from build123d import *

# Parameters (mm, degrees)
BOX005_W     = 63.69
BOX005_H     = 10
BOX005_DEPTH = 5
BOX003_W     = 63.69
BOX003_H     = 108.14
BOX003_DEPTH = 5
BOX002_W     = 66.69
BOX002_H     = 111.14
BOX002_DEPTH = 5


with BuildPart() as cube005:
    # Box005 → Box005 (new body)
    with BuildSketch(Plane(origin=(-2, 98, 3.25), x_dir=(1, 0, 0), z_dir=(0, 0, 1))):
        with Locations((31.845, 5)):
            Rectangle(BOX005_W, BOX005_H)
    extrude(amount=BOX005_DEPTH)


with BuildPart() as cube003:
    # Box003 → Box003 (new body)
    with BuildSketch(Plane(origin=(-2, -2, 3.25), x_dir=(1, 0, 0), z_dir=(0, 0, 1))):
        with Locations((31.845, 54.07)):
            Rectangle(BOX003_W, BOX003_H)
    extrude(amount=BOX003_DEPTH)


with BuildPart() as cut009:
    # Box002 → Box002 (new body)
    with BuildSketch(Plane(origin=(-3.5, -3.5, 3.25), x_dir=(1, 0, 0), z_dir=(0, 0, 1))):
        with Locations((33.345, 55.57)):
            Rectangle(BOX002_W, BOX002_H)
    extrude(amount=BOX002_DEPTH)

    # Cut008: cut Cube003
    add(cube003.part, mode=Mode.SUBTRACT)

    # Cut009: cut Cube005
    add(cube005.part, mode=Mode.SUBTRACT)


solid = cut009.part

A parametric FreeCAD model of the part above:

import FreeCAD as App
import Part
import Sketcher

V = App.Vector


def add_polygon(sketch, points):
    """Adds a closed chain of lines whose ends are joined by coincident constraints."""
    first, n = sketch.GeometryCount, len(points)
    for a, b in zip(points, points[1:] + points[:1]):
        sketch.addGeometry(Part.LineSegment(App.Vector(*a, 0), App.Vector(*b, 0)), False)
    for i in range(n):
        sketch.addConstraint(Sketcher.Constraint("Coincident", first + i, 2, first + (i + 1) % n, 1))

doc = App.newDocument("Part")
body = doc.addObject("PartDesign::Body", "Body")

sketch1 = body.newObject("Sketcher::SketchObject", "Sketch")
sketch1.AttachmentSupport = (doc.getObject("XY_Plane"), [""])
sketch1.MapMode = "FlatFace"
sketch1.AttachmentOffset = App.Placement(V(0, 0, 3.25), App.Rotation())
add_polygon(sketch1, [(-2, 108), (-2, 98), (62, 98), (62, 108)])
sketch1.addConstraint([
    Sketcher.Constraint("Vertical", 0),
    Sketcher.Constraint("Horizontal", 1),
    Sketcher.Constraint("Vertical", 2),
    Sketcher.Constraint("Horizontal", 3),
    Sketcher.Constraint("DistanceY", 0, 2, 0, 1, 10.0),
    Sketcher.Constraint("DistanceX", 0, 2, -1, 1, 2.0),
    Sketcher.Constraint("DistanceY", -1, 1, 0, 2, 98.0),
    Sketcher.Constraint("DistanceX", 1, 1, 1, 2, 63.69),
])
pad1 = body.newObject("PartDesign::Pad", "Pad")
pad1.Profile = sketch1
pad1.Length = 5
body2 = doc.addObject("PartDesign::Body", "Body001")

sketch2 = body2.newObject("Sketcher::SketchObject", "Sketch001")
sketch2.AttachmentSupport = (doc.getObject("XY_Plane001"), [""])
sketch2.MapMode = "FlatFace"
sketch2.AttachmentOffset = App.Placement(V(0, 0, 3.25), App.Rotation())
add_polygon(sketch2, [(-2, 106), (-2, -2), (62, -2), (62, 106)])
sketch2.addConstraint([
    Sketcher.Constraint("Vertical", 0),
    Sketcher.Constraint("Horizontal", 1),
    Sketcher.Constraint("Vertical", 2),
    Sketcher.Constraint("Horizontal", 3),
    Sketcher.Constraint("DistanceX", 0, 2, -1, 1, 2.0),
    Sketcher.Constraint("DistanceY", 0, 2, -1, 1, 2.0),
    Sketcher.Constraint("DistanceX", 1, 1, 1, 2, 63.69),
    Sketcher.Constraint("DistanceY", 0, 2, 0, 1, 108.14),
])
pad2 = body2.newObject("PartDesign::Pad", "Pad001")
pad2.Profile = sketch2
pad2.Length = 5
body3 = doc.addObject("PartDesign::Body", "Body002")

sketch3 = body3.newObject("Sketcher::SketchObject", "Sketch002")
sketch3.AttachmentSupport = (doc.getObject("XY_Plane002"), [""])
sketch3.MapMode = "FlatFace"
sketch3.AttachmentOffset = App.Placement(V(0, 0, 3.25), App.Rotation())
add_polygon(sketch3, [(-4, 108), (-4, -4), (63, -4), (63, 108)])
sketch3.addConstraint([
    Sketcher.Constraint("Vertical", 0),
    Sketcher.Constraint("Horizontal", 1),
    Sketcher.Constraint("Vertical", 2),
    Sketcher.Constraint("Horizontal", 3),
    Sketcher.Constraint("DistanceX", 1, 1, 1, 2, 66.69),
    Sketcher.Constraint("DistanceY", 0, 2, 0, 1, 111.14),
    Sketcher.Constraint("DistanceX", 0, 2, -1, 1, 3.5),
    Sketcher.Constraint("DistanceY", 0, 2, -1, 1, 3.5),
])
pad3 = body3.newObject("PartDesign::Pad", "Pad002")
pad3.Profile = sketch3
pad3.Length = 5
doc.recompute()

boolean = body3.newObject("PartDesign::Boolean", "Boolean")
boolean.Type = "Cut"
boolean.addObjects([body2])
doc.recompute()

boolean2 = body3.newObject("PartDesign::Boolean", "Boolean001")
boolean2.Type = "Cut"
boolean2.addObjects([body])

doc.recompute()
